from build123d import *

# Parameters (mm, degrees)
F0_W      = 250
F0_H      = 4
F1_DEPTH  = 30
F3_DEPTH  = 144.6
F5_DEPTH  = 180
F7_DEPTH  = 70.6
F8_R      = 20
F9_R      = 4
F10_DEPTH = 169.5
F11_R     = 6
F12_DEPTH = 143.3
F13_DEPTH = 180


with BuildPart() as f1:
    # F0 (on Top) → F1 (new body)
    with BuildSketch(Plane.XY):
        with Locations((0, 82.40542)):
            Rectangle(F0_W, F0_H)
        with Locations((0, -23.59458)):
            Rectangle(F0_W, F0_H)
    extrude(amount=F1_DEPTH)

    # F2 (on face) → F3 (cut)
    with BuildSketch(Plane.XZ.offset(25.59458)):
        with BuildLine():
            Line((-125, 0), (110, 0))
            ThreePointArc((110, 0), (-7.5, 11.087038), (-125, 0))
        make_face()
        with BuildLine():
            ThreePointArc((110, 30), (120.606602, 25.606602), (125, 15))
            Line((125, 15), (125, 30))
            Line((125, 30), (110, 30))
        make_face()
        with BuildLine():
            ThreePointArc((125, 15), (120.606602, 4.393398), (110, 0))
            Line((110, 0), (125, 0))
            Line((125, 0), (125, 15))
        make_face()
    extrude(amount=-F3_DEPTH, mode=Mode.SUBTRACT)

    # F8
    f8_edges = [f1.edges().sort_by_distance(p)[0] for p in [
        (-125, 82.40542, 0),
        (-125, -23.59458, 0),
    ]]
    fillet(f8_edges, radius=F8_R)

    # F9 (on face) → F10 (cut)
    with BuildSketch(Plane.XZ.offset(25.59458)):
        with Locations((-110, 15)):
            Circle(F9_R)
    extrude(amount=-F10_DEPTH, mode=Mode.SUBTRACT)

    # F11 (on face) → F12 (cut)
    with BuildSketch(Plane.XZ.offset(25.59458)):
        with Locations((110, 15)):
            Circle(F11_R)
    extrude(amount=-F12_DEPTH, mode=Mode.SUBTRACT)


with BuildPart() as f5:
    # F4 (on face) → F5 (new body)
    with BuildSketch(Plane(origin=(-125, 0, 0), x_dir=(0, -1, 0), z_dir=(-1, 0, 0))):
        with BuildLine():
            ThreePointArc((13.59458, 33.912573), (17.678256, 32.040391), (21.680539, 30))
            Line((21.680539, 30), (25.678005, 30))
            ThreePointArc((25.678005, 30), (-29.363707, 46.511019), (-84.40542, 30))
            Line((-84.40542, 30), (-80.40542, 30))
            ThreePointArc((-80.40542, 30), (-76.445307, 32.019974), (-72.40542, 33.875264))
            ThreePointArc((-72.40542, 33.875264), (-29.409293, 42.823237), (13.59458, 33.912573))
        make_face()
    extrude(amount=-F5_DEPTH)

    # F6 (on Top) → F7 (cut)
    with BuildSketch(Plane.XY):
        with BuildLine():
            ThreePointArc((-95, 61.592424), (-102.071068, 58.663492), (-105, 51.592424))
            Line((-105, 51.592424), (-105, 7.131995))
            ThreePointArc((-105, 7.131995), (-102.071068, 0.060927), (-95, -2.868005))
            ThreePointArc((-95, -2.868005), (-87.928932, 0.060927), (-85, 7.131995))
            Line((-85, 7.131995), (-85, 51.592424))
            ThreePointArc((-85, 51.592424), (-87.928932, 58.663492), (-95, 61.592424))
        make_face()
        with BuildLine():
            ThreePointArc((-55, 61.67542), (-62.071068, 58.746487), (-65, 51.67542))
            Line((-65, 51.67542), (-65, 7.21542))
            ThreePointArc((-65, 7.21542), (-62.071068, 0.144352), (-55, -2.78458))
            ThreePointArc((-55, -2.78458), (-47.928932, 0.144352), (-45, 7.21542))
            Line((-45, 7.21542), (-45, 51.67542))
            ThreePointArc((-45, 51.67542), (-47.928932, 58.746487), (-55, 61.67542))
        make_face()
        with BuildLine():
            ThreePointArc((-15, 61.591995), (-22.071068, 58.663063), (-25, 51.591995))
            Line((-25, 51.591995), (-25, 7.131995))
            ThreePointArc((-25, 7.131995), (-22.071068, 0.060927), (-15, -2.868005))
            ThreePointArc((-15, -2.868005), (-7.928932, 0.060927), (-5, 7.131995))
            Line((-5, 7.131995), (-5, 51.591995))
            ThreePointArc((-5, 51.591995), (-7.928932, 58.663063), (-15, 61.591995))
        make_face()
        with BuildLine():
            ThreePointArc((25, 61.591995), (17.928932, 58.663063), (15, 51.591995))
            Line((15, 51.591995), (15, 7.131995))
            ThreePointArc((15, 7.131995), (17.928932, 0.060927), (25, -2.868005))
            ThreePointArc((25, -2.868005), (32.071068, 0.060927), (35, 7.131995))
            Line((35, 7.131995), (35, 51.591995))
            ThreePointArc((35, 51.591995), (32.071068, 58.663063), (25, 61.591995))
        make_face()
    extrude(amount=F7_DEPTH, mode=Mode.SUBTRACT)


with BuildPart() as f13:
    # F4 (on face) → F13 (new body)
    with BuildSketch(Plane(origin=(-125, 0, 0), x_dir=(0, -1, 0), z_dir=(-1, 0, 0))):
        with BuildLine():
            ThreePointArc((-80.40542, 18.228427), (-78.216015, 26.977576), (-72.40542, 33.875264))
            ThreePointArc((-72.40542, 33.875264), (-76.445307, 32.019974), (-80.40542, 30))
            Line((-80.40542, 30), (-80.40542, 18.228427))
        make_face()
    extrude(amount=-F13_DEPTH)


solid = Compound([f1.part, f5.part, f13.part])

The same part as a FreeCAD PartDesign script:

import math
import FreeCAD as App
import Part
import Sketcher

V = App.Vector


def edges_at(feature, points):
    """Names of the edges that pass closest to the given points."""
    edges = feature.Shape.Edges
    near = lambda p: min(range(len(edges)), key=lambda i: edges[i].distToShape(Part.Vertex(*p))[0])
    return sorted({f"Edge{near(p) + 1}" for p in points})


def add_polygon(sketch, points):
    """Adds a closed chain of lines whose ends are joined by coincident constraints."""
    first, n = sketch.GeometryCount, len(points)
    for a, b in zip(points, points[1:] + points[:1]):
        sketch.addGeometry(Part.LineSegment(App.Vector(*a, 0), App.Vector(*b, 0)), False)
    for i in range(n):
        sketch.addConstraint(Sketcher.Constraint("Coincident", first + i, 2, first + (i + 1) % n, 1))

doc = App.newDocument("Part")
body = doc.addObject("PartDesign::Body", "Body")
body.AllowCompound = True

# Sketch on XY plane
sketch1 = body.newObject("Sketcher::SketchObject", "Sketch")
sketch1.AttachmentSupport = (doc.getObject("XY_Plane"), [""])
sketch1.MapMode = "FlatFace"
add_polygon(sketch1, [(-125, 84.4), (-125, 80.4), (125, 80.4), (125, 84.4)])  # lines 0-3
add_polygon(sketch1, [(-125, -21.6), (-125, -25.6), (125, -25.6), (125, -21.6)])  # lines 4-7
sketch1.addConstraint([
    Sketcher.Constraint("Vertical", 0),
    Sketcher.Constraint("Horizontal", 1),
    Sketcher.Constraint("Vertical", 2),
    Sketcher.Constraint("Horizontal", 3),
    Sketcher.Constraint("Vertical", 4),
    Sketcher.Constraint("Horizontal", 5),
    Sketcher.Constraint("Vertical", 6),
    Sketcher.Constraint("Horizontal", 7),
    Sketcher.Constraint("Vertical", 3, 2, 4, 2),
    Sketcher.Constraint("Vertical", 2, 2, 5, 2),
    Sketcher.Constraint("Equal", 2, 4),
    Sketcher.Constraint("DistanceX", 1, 1, 1, 2, 250.0),
    Sketcher.Constraint("DistanceY", 0, 2, 0, 1, 4.0),
    Sketcher.Constraint("DistanceX", 0, 2, -1, 1, 125.0),
    Sketcher.Constraint("DistanceY", 4, 2, 0, 2, 106.0),
    Sketcher.Constraint("DistanceY", -1, 1, 0, 2, 80.40542),
])
pad1 = body.newObject("PartDesign::Pad", "Pad")
pad1.Profile = sketch1
pad1.Length = 30

# Sketch on XZ plane
sketch2 = body.newObject("Sketcher::SketchObject", "Sketch001")
sketch2.AttachmentSupport = (doc.getObject("XZ_Plane"), [""])
sketch2.MapMode = "FlatFace"
sketch2.AttachmentOffset = App.Placement(V(0, 0, 25.59458), App.Rotation())
sketch2.addGeometry([
    Part.LineSegment(V(-125, 0, 0), V(110, 0, 0)),  # 0
    Part.ArcOfCircle(Part.Circle(V(-8, -617, 0), V(0, 0, 1), 628), math.radians(79), math.radians(101)),  # 1
    Part.ArcOfCircle(Part.Circle(V(110, 15, 0), V(0, 0, 1), 15), math.radians(0), math.radians(90)),  # 2
    Part.LineSegment(V(125, 15, 0), V(125, 30, 0)),  # 3
    Part.LineSegment(V(125, 30, 0), V(110, 30, 0)),  # 4
    Part.ArcOfCircle(Part.Circle(V(110, 15, 0), V(0, 0, 1), 15), math.radians(-90), math.radians(0)),  # 5
    Part.LineSegment(V(110, 0, 0), V(125, 0, 0)),  # 6
    Part.LineSegment(V(125, 0, 0), V(125, 15, 0)),  # 7
], False)
sketch2.addConstraint([
    Sketcher.Constraint("Coincident", 0, 1, 1, 2),
    Sketcher.Constraint("Coincident", 1, 1, 0, 2),
    Sketcher.Constraint("Tangent", 2, 1, 3, 1),
    Sketcher.Constraint("Coincident", 3, 2, 4, 1),
    Sketcher.Constraint("Tangent", 4, 2, 2, 2),
    Sketcher.Constraint("Tangent", 5, 1, 6, 1),
    Sketcher.Constraint("Coincident", 6, 2, 7, 1),
    Sketcher.Constraint("Tangent", 7, 2, 5, 2),
    Sketcher.Constraint("Horizontal", 0),
    Sketcher.Constraint("Vertical", 3),
    Sketcher.Constraint("Horizontal", 4),
    Sketcher.Constraint("Horizontal", 6),
    Sketcher.Constraint("Vertical", 7),
    Sketcher.Constraint("Coincident", 5, 3, 2, 3),
    Sketcher.Constraint("Equal", 2, 5),
    Sketcher.Constraint("Symmetric", 0, 1, 6, 2, -1, 1),
    Sketcher.Constraint("PointOnObject", 0, 1, -1),
    Sketcher.Constraint("Radius", 2, 14.999999),
    Sketcher.Constraint("DistanceX", 0, 1, 0, 2, 235.0),
    Sketcher.Constraint("DistanceX", -1, 1, 2, 3, 110.000001),
    Sketcher.Constraint("Radius", 1, 628.173747),
])
pocket1 = body.newObject("PartDesign::Pocket", "Pocket")
pocket1.Profile = sketch2
pocket1.Length = 144.6
doc.recompute()

fillet = body.newObject("PartDesign::Fillet", "Fillet")
fillet.Base = (pocket1, edges_at(pocket1, [(-125, 82.405, 0), (-125, -23.595, 0)]))
fillet.Radius = 20

# Sketch on XZ plane
sketch3 = body.newObject("Sketcher::SketchObject", "Sketch002")
sketch3.AttachmentSupport = (doc.getObject("XZ_Plane"), [""])
sketch3.MapMode = "FlatFace"
sketch3.AttachmentOffset = App.Placement(V(0, 0, 25.59458), App.Rotation())
sketch3.addGeometry(Part.Circle(V(-110, 15, 0), V(0, 0, 1), 4), False)
sketch3.addConstraint([
    Sketcher.Constraint("Diameter", 0, 8.0),
    Sketcher.Constraint("DistanceX", 0, 3, -1, 1, 110.0),
    Sketcher.Constraint("DistanceY", -1, 1, 0, 3, 15.0),
])
pocket2 = body.newObject("PartDesign::Pocket", "Pocket001")
pocket2.Profile = sketch3
pocket2.Length = 169.5

# Sketch on XZ plane
sketch4 = body.newObject("Sketcher::SketchObject", "Sketch003")
sketch4.AttachmentSupport = (doc.getObject("XZ_Plane"), [""])
sketch4.MapMode = "FlatFace"
sketch4.AttachmentOffset = App.Placement(V(0, 0, 25.59458), App.Rotation())
sketch4.addGeometry(Part.Circle(V(110, 15, 0), V(0, 0, 1), 6), False)
sketch4.addConstraint([
    Sketcher.Constraint("Diameter", 0, 12.0),
    Sketcher.Constraint("DistanceX", -1, 1, 0, 3, 110.0),
    Sketcher.Constraint("DistanceY", -1, 1, 0, 3, 15.0),
])
pocket3 = body.newObject("PartDesign::Pocket", "Pocket002")
pocket3.Profile = sketch4
pocket3.Length = 143.3
body2 = doc.addObject("PartDesign::Body", "Body001")

# Sketch on YZ plane
sketch5 = body2.newObject("Sketcher::SketchObject", "Sketch004")
sketch5.AttachmentSupport = (doc.getObject("YZ_Plane001"), [""])
sketch5.MapMode = "FlatFace"
sketch5.AttachmentOffset = App.Placement(V(0, 0, -125), App.Rotation())
sketch5.addGeometry([
    Part.ArcOfCircle(Part.Circle(V(29.362183, -65.176211, 0), V(0, 0, 1), 107.999401), math.radians(113.437596), math.radians(118.204528)),  # 0
    Part.LineSegment(V(-21.680539, 30, 0), V(-25.678005, 30, 0)),  # 1
    Part.ArcOfCircle(Part.Circle(V(29.363708, -53.488983, 0), V(0, 0, 1), 100.000002), math.radians(56.604367), math.radians(123.395633)),  # 2
    Part.LineSegment(V(84.40542, 30, 0), V(80.40542, 30, 0)),  # 3
    Part.ArcOfCircle(Part.Circle(V(29.362306, -65.177019, 0), V(0, 0, 1), 108.000298), math.radians(61.795491), math.radians(66.512671)),  # 4
    Part.ArcOfCircle(Part.Circle(V(29.362441, -65.176759, 0), V(0, 0, 1), 108.000006), math.radians(66.512682), math.radians(113.437606)),  # 5
], False)
sketch5.addConstraint([
    Sketcher.Constraint("Coincident", 0, 2, 1, 1),
    Sketcher.Constraint("Coincident", 1, 2, 2, 2),
    Sketcher.Constraint("Coincident", 2, 1, 3, 1),
    Sketcher.Constraint("Coincident", 3, 2, 4, 1),
    Sketcher.Constraint("Coincident", 4, 2, 5, 1),
    Sketcher.Constraint("Coincident", 5, 2, 0, 1),
    Sketcher.Constraint("Horizontal", 1),
    Sketcher.Constraint("Horizontal", 3),
    Sketcher.Constraint("Radius", 2, 100.000002),
    Sketcher.Constraint("DistanceX", 3, 2, 3, 1, 4.0),
    Sketcher.Constraint("DistanceY", -1, 1, 0, 2, 30.0),
    Sketcher.Constraint("DistanceY", -1, 1, 2, 1, 30.0),
    Sketcher.Constraint("DistanceX", 4, 2, 3, 2, 8.0),
    Sketcher.Constraint("DistanceX", 5, 2, 4, 2, 86.0),
    Sketcher.Constraint("Radius", 0, 107.999401),
    Sketcher.Constraint("Radius", 4, 108.000298),
    Sketcher.Constraint("Radius", 5, 108.000006),
    Sketcher.Constraint("DistanceX", 4, 3, 2, 3, 0.001401),
    Sketcher.Constraint("DistanceX", 1, 2, 1, 1, 3.997466),
    Sketcher.Constraint("DistanceY", 0, 3, -1, 1, 65.176211),
    Sketcher.Constraint("DistanceY", 4, 3, -1, 1, 65.177019),
    Sketcher.Constraint("DistanceX", -1, 1, 5, 3, 29.362441),
])
pad2 = body2.newObject("PartDesign::Pad", "Pad001")
pad2.Profile = sketch5
pad2.Length = 180

# Sketch on XY plane
sketch6 = body2.newObject("Sketcher::SketchObject", "Sketch005")
sketch6.AttachmentSupport = (doc.getObject("XY_Plane001"), [""])
sketch6.MapMode = "FlatFace"
sketch6.addGeometry([
    Part.ArcOfCircle(Part.Circle(V(-95, 52, 0), V(0, 0, 1), 10), math.radians(90), math.radians(180)),  # 0
    Part.LineSegment(V(-105, 52, 0), V(-105, 7, 0)),  # 1
    Part.ArcOfCircle(Part.Circle(V(-95, 7, 0), V(0, 0, 1), 10), math.radians(180), math.radians(270)),  # 2
    Part.ArcOfCircle(Part.Circle(V(-95, 7, 0), V(0, 0, 1), 10), math.radians(-90), math.radians(0)),  # 3
    Part.LineSegment(V(-85, 7, 0), V(-85, 52, 0)),  # 4
    Part.ArcOfCircle(Part.Circle(V(-95, 52, 0), V(0, 0, 1), 10), math.radians(0), math.radians(90)),  # 5
    Part.ArcOfCircle(Part.Circle(V(-55, 52, 0), V(0, 0, 1), 10), math.radians(90), math.radians(180)),  # 6
    Part.LineSegment(V(-65, 52, 0), V(-65, 7, 0)),  # 7
    Part.ArcOfCircle(Part.Circle(V(-55, 7, 0), V(0, 0, 1), 10), math.radians(180), math.radians(270)),  # 8
    Part.ArcOfCircle(Part.Circle(V(-55, 7, 0), V(0, 0, 1), 10), math.radians(-90), math.radians(0)),  # 9
    Part.LineSegment(V(-45, 7, 0), V(-45, 52, 0)),  # 10
    Part.ArcOfCircle(Part.Circle(V(-55, 52, 0), V(0, 0, 1), 10), math.radians(0), math.radians(90)),  # 11
    Part.ArcOfCircle(Part.Circle(V(-15, 52, 0), V(0, 0, 1), 10), math.radians(90), math.radians(180)),  # 12
    Part.LineSegment(V(-25, 52, 0), V(-25, 7, 0)),  # 13
    Part.ArcOfCircle(Part.Circle(V(-15, 7, 0), V(0, 0, 1), 10), math.radians(180), math.radians(270)),  # 14
    Part.ArcOfCircle(Part.Circle(V(-15, 7, 0), V(0, 0, 1), 10), math.radians(-90), math.radians(0)),  # 15
    Part.LineSegment(V(-5, 7, 0), V(-5, 52, 0)),  # 16
    Part.ArcOfCircle(Part.Circle(V(-15, 52, 0), V(0, 0, 1), 10), math.radians(0), math.radians(90)),  # 17
    Part.ArcOfCircle(Part.Circle(V(25, 52, 0), V(0, 0, 1), 10), math.radians(90), math.radians(180)),  # 18
    Part.LineSegment(V(15, 52, 0), V(15, 7, 0)),  # 19
    Part.ArcOfCircle(Part.Circle(V(25, 7, 0), V(0, 0, 1), 10), math.radians(180), math.radians(270)),  # 20
    Part.ArcOfCircle(Part.Circle(V(25, 7, 0), V(0, 0, 1), 10), math.radians(-90), math.radians(0)),  # 21
    Part.LineSegment(V(35, 7, 0), V(35, 52, 0)),  # 22
    Part.ArcOfCircle(Part.Circle(V(25, 52, 0), V(0, 0, 1), 10), math.radians(0), math.radians(90)),  # 23
], False)
sketch6.addConstraint([
    Sketcher.Constraint("Tangent", 0, 2, 1, 1),
    Sketcher.Constraint("Tangent", 1, 2, 2, 1),
    Sketcher.Constraint("Tangent", 2, 2, 3, 1),
    Sketcher.Constraint("Tangent", 3, 2, 4, 1),
    Sketcher.Constraint("Tangent", 4, 2, 5, 1),
    Sketcher.Constraint("Tangent", 5, 2, 0, 1),
    Sketcher.Constraint("Tangent", 6, 2, 7, 1),
    Sketcher.Constraint("Tangent", 7, 2, 8, 1),
    Sketcher.Constraint("Tangent", 8, 2, 9, 1),
    Sketcher.Constraint("Tangent", 9, 2, 10, 1),
    Sketcher.Constraint("Tangent", 10, 2, 11, 1),
    Sketcher.Constraint("Tangent", 11, 2, 6, 1),
    Sketcher.Constraint("Tangent", 12, 2, 13, 1),
    Sketcher.Constraint("Tangent", 13, 2, 14, 1),
    Sketcher.Constraint("Tangent", 14, 2, 15, 1),
    Sketcher.Constraint("Tangent", 15, 2, 16, 1),
    Sketcher.Constraint("Tangent", 16, 2, 17, 1),
    Sketcher.Constraint("Tangent", 17, 2, 12, 1),
    Sketcher.Constraint("Tangent", 18, 2, 19, 1),
    Sketcher.Constraint("Tangent", 19, 2, 20, 1),
    Sketcher.Constraint("Tangent", 20, 2, 21, 1),
    Sketcher.Constraint("Tangent", 21, 2, 22, 1),
    Sketcher.Constraint("Tangent", 22, 2, 23, 1),
    Sketcher.Constraint("Tangent", 23, 2, 18, 1),
    Sketcher.Constraint("Vertical", 1),
    Sketcher.Constraint("Vertical", 4),
    Sketcher.Constraint("Vertical", 7),
    Sketcher.Constraint("Vertical", 10),
    Sketcher.Constraint("Vertical", 13),
    Sketcher.Constraint("Vertical", 16),
    Sketcher.Constraint("Vertical", 19),
    Sketcher.Constraint("Vertical", 22),
    Sketcher.Constraint("Equal", 0, 2),
    Sketcher.Constraint("Equal", 2, 3),
    Sketcher.Constraint("Equal", 5, 6),
    Sketcher.Constraint("Equal", 6, 8),
    Sketcher.Constraint("Equal", 8, 9),
    Sketcher.Constraint("Equal", 11, 12),
    Sketcher.Constraint("Equal", 12, 14),
    Sketcher.Constraint("Equal", 14, 15),
    Sketcher.Constraint("Equal", 17, 18),
    Sketcher.Constraint("Equal", 18, 20),
    Sketcher.Constraint("Equal", 20, 21),
    Sketcher.Constraint("Horizontal", 3, 3, 14, 3),
    Sketcher.Constraint("Horizontal", 17, 3, 18, 3),
    Sketcher.Constraint("Horizontal", 15, 3, 20, 3),
    Sketcher.Constraint("Vertical", 5, 3, 2, 2),
    Sketcher.Constraint("Vertical", 2, 2, 5, 2),
    Sketcher.Constraint("Vertical", 11, 3, 8, 2),
    Sketcher.Constraint("Vertical", 8, 2, 11, 2),
    Sketcher.Constraint("Vertical", 17, 3, 14, 2),
    Sketcher.Constraint("Vertical", 14, 2, 17, 2),
    Sketcher.Constraint("Vertical", 23, 3, 20, 2),
    Sketcher.Constraint("Vertical", 20, 2, 23, 2),
    Sketcher.Constraint("Equal", 10, 13),
    Sketcher.Constraint("Radius", 0, 9.999999),
    Sketcher.Constraint("DistanceX", 0, 3, -1, 1, 95.000001),
    Sketcher.Constraint("DistanceX", 6, 3, -1, 1, 54.999999),
    Sketcher.Constraint("DistanceX", 12, 3, -1, 1, 15.000001),
    Sketcher.Constraint("DistanceX", -1, 1, 18, 3, 24.999999),
    Sketcher.Constraint("DistanceY", 7, 2, 7, 1, 44.46),
    Sketcher.Constraint("DistanceY", 1, 2, 1, 1, 44.460429),
    Sketcher.Constraint("DistanceY", -1, 1, 6, 3, 51.675419),
    Sketcher.Constraint("DistanceY", -1, 1, 0, 3, 51.592425),
])
pocket4 = body2.newObject("PartDesign::Pocket", "Pocket003")
pocket4.Profile = sketch6
pocket4.Length = 70.6
pocket4.Reversed = True
body3 = doc.addObject("PartDesign::Body", "Body002")

# Sketch on YZ plane
sketch7 = body3.newObject("Sketcher::SketchObject", "Sketch006")
sketch7.AttachmentSupport = (doc.getObject("YZ_Plane002"), [""])
sketch7.MapMode = "FlatFace"
sketch7.AttachmentOffset = App.Placement(V(0, 0, -125), App.Rotation())
sketch7.addGeometry([
    Part.ArcOfCircle(Part.Circle(V(60, 18, 0), V(0, 0, 1), 20), math.radians(1), math.radians(53)),
    Part.ArcOfCircle(Part.Circle(V(29, -65, 0), V(0, 0, 1), 108), math.radians(61.8), math.radians(66.51)),
    Part.LineSegment(V(80, 30, 0), V(80, 18, 0)),
], False)
sketch7.addConstraint([
    Sketcher.Constraint("Coincident", 0, 2, 1, 2),
    Sketcher.Constraint("Coincident", 1, 1, 2, 1),
    Sketcher.Constraint("Coincident", 2, 2, 0, 1),
    Sketcher.Constraint("Vertical", 2),
    Sketcher.Constraint("DistanceY", -1, 1, 1, 1, 30.0),
    Sketcher.Constraint("DistanceX", 0, 2, 1, 1, 8.0),
    Sketcher.Constraint("Radius", 1, 108.000298),
    Sketcher.Constraint("Radius", 0, 20.000009),
    Sketcher.Constraint("DistanceY", 2, 2, 2, 1, 11.771573),
    Sketcher.Constraint("DistanceX", -1, 1, 0, 3, 60.408571),
    Sketcher.Constraint("DistanceY", -1, 1, 0, 3, 17.87289),
])
pad3 = body3.newObject("PartDesign::Pad", "Pad002")
pad3.Profile = sketch7
pad3.Length = 180

doc.recompute()
